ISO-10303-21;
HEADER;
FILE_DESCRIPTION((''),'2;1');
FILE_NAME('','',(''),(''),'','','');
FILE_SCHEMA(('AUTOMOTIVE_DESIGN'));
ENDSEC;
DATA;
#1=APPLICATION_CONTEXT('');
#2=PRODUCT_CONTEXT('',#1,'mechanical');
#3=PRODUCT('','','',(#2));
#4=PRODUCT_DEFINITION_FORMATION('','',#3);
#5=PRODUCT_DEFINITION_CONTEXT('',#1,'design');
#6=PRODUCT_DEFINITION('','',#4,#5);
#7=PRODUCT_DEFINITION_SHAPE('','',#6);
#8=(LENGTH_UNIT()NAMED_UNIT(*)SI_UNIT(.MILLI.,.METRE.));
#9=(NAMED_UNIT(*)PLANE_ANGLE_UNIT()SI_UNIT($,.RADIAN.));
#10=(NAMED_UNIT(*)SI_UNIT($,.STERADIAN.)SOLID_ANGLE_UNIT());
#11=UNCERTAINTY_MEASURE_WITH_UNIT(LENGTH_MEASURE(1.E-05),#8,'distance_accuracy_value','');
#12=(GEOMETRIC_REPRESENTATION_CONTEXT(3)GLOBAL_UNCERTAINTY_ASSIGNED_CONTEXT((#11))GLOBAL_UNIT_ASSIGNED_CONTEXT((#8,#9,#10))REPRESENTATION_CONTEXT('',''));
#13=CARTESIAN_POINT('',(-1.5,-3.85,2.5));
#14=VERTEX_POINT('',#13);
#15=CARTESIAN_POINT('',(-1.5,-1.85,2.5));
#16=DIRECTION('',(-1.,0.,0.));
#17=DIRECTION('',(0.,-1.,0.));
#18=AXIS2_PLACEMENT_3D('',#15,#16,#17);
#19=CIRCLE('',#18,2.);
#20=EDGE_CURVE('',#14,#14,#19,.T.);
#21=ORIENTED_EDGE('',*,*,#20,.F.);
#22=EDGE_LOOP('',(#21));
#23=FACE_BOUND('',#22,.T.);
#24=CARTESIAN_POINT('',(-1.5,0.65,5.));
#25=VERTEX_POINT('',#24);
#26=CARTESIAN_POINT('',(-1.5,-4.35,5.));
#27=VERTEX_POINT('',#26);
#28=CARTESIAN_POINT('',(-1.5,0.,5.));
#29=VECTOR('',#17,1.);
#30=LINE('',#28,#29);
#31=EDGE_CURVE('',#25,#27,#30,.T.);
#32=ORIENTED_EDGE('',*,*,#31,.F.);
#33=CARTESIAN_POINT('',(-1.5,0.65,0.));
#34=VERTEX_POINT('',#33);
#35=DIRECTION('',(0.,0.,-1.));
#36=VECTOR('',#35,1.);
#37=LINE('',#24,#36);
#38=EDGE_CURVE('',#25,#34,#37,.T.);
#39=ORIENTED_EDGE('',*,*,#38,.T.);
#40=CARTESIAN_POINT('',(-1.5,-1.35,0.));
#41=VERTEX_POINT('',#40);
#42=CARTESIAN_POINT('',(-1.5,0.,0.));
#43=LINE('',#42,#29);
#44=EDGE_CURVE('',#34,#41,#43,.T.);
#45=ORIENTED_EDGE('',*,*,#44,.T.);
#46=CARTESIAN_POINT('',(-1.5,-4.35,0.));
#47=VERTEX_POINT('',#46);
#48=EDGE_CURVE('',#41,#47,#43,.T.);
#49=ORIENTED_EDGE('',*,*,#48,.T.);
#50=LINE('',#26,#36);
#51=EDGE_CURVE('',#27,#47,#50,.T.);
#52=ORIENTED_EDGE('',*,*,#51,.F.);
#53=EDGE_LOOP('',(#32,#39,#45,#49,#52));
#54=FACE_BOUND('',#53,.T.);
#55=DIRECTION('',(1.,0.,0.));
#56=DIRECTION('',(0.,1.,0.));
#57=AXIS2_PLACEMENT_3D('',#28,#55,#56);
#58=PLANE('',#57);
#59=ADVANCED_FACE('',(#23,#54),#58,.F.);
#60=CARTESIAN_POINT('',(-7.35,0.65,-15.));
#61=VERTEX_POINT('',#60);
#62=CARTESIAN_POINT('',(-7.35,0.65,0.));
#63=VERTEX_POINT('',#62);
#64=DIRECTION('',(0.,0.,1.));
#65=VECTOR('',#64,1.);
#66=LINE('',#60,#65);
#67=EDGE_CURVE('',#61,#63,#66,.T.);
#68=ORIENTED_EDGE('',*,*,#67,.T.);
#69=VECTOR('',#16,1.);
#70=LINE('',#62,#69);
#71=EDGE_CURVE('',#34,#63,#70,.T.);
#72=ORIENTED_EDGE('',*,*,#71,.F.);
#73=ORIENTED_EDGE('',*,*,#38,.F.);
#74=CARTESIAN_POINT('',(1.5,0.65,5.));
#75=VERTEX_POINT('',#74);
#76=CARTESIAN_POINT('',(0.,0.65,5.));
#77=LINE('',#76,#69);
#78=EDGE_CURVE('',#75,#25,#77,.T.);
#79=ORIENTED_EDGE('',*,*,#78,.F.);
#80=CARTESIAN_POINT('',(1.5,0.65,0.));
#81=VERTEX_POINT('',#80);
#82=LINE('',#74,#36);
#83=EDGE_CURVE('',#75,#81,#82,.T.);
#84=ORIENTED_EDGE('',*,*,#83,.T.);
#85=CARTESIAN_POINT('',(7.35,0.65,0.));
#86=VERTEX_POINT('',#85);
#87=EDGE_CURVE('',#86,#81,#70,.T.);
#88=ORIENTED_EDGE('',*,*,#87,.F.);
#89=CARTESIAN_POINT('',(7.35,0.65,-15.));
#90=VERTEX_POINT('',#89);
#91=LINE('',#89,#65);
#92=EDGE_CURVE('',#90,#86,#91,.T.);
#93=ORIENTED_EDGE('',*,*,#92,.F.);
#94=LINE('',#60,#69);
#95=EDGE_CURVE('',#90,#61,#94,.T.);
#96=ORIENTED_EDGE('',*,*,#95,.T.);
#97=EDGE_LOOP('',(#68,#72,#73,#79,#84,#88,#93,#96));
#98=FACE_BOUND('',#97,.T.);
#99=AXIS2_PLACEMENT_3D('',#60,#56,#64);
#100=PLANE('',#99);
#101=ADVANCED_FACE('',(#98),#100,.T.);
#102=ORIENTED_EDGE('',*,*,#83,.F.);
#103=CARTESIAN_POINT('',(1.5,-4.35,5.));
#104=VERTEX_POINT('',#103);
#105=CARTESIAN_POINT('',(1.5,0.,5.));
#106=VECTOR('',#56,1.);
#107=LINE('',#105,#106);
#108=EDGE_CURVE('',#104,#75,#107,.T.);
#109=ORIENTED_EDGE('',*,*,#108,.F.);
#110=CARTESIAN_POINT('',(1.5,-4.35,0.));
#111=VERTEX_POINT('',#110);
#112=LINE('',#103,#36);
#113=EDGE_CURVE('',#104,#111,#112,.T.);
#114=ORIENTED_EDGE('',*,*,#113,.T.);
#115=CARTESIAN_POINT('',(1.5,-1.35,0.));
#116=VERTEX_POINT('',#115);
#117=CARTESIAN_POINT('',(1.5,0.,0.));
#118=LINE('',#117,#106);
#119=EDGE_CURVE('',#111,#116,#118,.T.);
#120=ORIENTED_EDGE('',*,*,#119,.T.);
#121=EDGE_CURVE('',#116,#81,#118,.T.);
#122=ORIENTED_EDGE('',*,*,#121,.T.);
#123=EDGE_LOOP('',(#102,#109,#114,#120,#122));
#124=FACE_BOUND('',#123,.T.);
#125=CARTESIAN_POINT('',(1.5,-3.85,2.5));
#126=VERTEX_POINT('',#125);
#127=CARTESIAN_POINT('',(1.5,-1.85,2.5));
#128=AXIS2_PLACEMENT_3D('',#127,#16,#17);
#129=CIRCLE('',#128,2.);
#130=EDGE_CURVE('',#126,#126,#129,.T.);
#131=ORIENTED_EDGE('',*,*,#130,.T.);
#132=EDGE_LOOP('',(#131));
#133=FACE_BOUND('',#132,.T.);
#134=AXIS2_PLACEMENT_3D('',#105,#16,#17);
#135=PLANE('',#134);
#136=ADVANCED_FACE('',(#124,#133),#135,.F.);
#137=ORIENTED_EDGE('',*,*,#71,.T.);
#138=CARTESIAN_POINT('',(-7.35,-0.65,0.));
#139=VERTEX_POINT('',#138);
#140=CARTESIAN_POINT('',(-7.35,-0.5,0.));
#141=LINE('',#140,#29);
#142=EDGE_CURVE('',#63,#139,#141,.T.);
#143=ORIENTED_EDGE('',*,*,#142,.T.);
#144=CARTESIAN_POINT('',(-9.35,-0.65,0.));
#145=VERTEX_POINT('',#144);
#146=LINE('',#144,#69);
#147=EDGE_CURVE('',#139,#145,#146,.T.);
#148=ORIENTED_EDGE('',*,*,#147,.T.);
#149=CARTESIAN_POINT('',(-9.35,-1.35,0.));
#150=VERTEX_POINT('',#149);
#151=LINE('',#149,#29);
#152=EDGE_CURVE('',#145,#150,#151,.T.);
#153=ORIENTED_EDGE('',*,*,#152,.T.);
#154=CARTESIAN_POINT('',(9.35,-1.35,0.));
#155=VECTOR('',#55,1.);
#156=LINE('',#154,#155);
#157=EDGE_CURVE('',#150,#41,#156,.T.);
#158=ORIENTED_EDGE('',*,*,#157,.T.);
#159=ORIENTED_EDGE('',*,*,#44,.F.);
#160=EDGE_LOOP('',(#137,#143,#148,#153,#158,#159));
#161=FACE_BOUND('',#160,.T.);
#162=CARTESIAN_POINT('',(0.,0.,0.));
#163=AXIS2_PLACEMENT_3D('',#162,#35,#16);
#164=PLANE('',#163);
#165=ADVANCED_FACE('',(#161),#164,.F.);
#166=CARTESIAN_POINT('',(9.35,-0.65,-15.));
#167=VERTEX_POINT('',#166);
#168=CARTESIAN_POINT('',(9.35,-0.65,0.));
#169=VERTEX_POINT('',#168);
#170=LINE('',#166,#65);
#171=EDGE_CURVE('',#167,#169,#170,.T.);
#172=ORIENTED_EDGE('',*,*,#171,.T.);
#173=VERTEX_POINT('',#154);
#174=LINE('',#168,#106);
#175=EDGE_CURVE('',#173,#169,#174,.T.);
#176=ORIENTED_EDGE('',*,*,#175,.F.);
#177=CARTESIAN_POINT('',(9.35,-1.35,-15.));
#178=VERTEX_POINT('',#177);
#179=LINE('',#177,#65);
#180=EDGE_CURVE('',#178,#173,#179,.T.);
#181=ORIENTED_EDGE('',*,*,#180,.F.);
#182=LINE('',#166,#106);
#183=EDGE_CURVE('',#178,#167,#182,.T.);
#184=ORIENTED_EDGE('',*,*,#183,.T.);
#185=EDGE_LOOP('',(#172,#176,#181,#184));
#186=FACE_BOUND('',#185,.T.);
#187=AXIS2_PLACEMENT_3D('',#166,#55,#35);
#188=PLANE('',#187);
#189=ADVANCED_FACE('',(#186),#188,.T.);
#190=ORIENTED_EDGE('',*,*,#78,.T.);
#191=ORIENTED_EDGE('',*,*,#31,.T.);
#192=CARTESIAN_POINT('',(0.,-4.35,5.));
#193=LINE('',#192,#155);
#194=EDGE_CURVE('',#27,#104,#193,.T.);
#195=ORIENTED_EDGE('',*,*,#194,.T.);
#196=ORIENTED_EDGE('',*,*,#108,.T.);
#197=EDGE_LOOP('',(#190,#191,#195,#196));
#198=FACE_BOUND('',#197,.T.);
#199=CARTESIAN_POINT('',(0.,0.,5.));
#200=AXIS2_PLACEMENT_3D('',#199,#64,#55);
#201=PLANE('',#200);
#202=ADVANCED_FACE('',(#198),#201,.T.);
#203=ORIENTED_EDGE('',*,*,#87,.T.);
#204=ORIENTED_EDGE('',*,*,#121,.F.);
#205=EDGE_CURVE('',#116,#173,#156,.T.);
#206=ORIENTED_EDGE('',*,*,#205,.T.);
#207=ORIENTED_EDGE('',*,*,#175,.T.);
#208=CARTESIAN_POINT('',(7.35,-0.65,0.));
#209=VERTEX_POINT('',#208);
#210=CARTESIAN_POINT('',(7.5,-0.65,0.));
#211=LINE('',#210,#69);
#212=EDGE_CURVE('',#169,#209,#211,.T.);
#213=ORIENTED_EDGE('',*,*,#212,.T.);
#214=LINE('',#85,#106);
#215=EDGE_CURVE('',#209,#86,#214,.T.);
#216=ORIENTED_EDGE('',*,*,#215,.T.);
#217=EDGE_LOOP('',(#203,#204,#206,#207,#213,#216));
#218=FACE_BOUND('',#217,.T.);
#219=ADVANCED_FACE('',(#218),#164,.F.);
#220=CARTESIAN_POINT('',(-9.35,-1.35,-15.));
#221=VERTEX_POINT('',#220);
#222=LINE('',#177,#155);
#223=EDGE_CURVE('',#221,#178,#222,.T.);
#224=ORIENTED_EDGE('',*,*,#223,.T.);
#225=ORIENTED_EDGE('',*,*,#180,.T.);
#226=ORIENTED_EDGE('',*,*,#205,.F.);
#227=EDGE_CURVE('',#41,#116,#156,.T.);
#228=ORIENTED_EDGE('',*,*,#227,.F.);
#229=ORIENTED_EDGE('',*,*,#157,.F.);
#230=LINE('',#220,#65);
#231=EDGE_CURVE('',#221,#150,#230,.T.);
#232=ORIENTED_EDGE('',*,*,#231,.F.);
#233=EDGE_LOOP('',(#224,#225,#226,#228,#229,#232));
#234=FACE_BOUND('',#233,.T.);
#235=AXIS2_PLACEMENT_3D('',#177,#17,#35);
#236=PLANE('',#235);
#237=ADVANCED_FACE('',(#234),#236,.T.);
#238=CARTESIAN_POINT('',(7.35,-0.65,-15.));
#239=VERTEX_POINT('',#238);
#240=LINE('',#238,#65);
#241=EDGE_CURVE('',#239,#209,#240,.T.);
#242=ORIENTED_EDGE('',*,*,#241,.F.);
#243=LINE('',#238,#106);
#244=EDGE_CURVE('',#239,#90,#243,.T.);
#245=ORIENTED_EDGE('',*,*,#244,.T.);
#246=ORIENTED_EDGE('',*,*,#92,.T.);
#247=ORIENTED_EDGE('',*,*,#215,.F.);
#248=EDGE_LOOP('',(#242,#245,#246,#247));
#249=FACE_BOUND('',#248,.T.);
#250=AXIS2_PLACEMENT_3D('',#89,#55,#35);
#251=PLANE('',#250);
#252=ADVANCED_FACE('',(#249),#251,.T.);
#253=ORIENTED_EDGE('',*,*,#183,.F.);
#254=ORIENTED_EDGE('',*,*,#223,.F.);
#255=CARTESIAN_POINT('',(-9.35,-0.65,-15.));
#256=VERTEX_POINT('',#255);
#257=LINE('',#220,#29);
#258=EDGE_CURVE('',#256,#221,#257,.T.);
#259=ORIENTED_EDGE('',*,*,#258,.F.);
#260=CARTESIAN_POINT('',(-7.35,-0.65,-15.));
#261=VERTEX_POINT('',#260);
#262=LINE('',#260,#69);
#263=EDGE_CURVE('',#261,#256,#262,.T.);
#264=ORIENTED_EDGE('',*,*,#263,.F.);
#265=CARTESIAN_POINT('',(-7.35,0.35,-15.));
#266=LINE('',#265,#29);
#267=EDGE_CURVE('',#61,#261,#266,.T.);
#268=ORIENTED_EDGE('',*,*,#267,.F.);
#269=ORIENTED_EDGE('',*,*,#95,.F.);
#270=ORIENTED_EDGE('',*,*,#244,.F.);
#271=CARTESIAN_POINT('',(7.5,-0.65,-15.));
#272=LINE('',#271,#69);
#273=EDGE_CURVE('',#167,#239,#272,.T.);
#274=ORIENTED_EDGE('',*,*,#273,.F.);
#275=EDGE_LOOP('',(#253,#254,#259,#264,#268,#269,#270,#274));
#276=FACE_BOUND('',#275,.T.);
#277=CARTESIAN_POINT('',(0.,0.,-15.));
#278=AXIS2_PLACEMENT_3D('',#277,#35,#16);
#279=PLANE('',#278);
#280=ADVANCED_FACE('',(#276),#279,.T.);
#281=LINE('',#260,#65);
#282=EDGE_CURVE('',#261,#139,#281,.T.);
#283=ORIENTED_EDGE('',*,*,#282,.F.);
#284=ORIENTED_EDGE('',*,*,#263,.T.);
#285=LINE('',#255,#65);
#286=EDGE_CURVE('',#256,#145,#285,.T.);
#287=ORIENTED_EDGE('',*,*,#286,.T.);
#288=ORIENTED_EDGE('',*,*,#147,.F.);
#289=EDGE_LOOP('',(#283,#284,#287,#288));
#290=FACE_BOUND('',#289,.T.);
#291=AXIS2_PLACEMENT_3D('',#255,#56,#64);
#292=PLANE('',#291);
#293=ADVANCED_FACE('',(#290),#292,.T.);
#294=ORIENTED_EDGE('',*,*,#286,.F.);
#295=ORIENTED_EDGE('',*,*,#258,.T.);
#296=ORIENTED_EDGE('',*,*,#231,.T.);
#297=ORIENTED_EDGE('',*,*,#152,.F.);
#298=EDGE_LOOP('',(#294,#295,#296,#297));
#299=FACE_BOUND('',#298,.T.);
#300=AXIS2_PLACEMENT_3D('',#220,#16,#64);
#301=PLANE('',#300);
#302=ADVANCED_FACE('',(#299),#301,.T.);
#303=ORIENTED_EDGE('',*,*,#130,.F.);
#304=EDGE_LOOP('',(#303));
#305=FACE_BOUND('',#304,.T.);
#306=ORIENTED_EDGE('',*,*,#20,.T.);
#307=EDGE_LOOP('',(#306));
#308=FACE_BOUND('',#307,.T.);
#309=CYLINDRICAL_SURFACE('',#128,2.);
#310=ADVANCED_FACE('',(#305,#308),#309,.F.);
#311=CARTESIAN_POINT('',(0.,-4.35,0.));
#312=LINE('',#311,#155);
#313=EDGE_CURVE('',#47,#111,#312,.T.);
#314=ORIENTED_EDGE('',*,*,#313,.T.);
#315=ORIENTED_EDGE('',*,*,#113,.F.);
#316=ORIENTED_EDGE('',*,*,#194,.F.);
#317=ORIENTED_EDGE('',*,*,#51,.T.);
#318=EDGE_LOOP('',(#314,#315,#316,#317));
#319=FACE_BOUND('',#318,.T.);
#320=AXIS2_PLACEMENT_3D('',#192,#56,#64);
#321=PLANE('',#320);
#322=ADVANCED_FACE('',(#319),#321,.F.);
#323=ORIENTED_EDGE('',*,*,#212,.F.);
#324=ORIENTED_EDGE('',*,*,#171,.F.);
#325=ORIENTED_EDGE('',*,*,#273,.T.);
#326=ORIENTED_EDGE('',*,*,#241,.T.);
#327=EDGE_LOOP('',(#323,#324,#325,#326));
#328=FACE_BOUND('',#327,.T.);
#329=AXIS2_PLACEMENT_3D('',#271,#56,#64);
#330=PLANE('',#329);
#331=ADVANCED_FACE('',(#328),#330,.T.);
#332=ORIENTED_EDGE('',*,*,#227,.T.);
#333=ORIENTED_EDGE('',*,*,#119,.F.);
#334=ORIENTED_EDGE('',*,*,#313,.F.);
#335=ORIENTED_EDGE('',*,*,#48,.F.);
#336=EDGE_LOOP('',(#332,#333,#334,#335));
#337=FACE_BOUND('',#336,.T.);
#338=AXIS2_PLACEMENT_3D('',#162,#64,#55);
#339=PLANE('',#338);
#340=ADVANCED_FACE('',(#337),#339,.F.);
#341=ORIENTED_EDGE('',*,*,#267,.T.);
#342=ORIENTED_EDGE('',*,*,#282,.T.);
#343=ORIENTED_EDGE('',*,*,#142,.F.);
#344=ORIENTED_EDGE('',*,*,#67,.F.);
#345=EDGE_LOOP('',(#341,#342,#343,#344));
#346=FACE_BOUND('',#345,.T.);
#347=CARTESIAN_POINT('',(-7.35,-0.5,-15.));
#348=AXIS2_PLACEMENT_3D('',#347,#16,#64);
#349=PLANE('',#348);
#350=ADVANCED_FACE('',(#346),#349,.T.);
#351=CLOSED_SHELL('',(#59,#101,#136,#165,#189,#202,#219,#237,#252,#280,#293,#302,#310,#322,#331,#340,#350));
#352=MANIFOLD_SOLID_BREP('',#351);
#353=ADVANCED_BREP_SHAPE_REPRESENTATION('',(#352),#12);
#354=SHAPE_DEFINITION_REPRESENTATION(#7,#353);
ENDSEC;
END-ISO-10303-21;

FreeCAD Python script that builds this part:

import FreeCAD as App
import Part
import Sketcher
from FreeCAD import Vector
Q = App.Units.Quantity

doc = App.newDocument("Part")
body = doc.addObject("PartDesign::Body", "Body")

# Sketch on XY plane
sketch1 = doc.addObject("Sketcher::SketchObject", "Sketch")
body.addObject(sketch1)
sketch1.AttachmentSupport = (doc.XY_Plane, [""])
sketch1.MapMode = "FlatFace"
sketch1.addGeometry(Part.LineSegment(Vector(9.3, -0.7, 0), Vector(7.3, -0.7, 0)), False)
sketch1.addGeometry(Part.LineSegment(Vector(7.3, -0.7, 0), Vector(7.3, 0.7, 0)), False)
sketch1.addGeometry(Part.LineSegment(Vector(7.3, 0.7, 0), Vector(-7.3, 0.7, 0)), False)
sketch1.addGeometry(Part.LineSegment(Vector(-7.3, 0.7, 0), Vector(-7.3, -0.7, 0)), False)
sketch1.addGeometry(Part.LineSegment(Vector(-7.3, -0.7, 0), Vector(-9.3, -0.7, 0)), False)
sketch1.addGeometry(Part.LineSegment(Vector(-9.3, -0.7, 0), Vector(-9.3, -1.4, 0)), False)
sketch1.addGeometry(Part.LineSegment(Vector(-9.3, -1.4, 0), Vector(9.3, -1.4, 0)), False)
sketch1.addGeometry(Part.LineSegment(Vector(9.3, -1.4, 0), Vector(9.3, -0.7, 0)), False)
sketch1.addConstraint(Sketcher.Constraint("Coincident", 0, 2, 1, 1))
sketch1.addConstraint(Sketcher.Constraint("Coincident", 1, 2, 2, 1))
sketch1.addConstraint(Sketcher.Constraint("Coincident", 2, 2, 3, 1))
sketch1.addConstraint(Sketcher.Constraint("Coincident", 3, 2, 4, 1))
sketch1.addConstraint(Sketcher.Constraint("Coincident", 4, 2, 5, 1))
sketch1.addConstraint(Sketcher.Constraint("Coincident", 5, 2, 6, 1))
sketch1.addConstraint(Sketcher.Constraint("Coincident", 6, 2, 7, 1))
sketch1.addConstraint(Sketcher.Constraint("Coincident", 7, 2, 0, 1))
sketch1.addConstraint(Sketcher.Constraint("Horizontal", 0))
sketch1.addConstraint(Sketcher.Constraint("Vertical", 1))
sketch1.addConstraint(Sketcher.Constraint("Horizontal", 2))
sketch1.addConstraint(Sketcher.Constraint("Vertical", 3))
sketch1.addConstraint(Sketcher.Constraint("Horizontal", 4))
sketch1.addConstraint(Sketcher.Constraint("Vertical", 5))
sketch1.addConstraint(Sketcher.Constraint("Horizontal", 6))
sketch1.addConstraint(Sketcher.Constraint("Vertical", 7))
sketch1.addConstraint(Sketcher.Constraint("Symmetric", 0, 2, 2, 2, -1, 1))
sketch1.addConstraint(Sketcher.Constraint("Symmetric", 4, 2, 7, 2, -2))
sketch1.addConstraint(Sketcher.Constraint("DistanceX", 0, 2, 0, 1, Q("2 mm")))
sketch1.addConstraint(Sketcher.Constraint("DistanceX", 2, 2, 2, 1, Q("14.7 mm")))
sketch1.addConstraint(Sketcher.Constraint("DistanceY", 1, 1, 1, 2, Q("1.3 mm")))
sketch1.addConstraint(Sketcher.Constraint("DistanceY", 5, 2, 5, 1, Q("0.7 mm")))
pad1 = doc.addObject("PartDesign::Pad", "Pad")
body.addObject(pad1)
pad1.Profile = sketch1
pad1.Length = 15
pad1.Reversed = True

# Sketch on XY plane
sketch2 = doc.addObject("Sketcher::SketchObject", "Sketch001")
body.addObject(sketch2)
sketch2.AttachmentSupport = (doc.XY_Plane, [""])
sketch2.MapMode = "FlatFace"
sketch2.addGeometry(Part.LineSegment(Vector(-1.5, -4.3, 0), Vector(1.5, -4.3, 0)), False)
sketch2.addGeometry(Part.LineSegment(Vector(1.5, -4.3, 0), Vector(1.5, 0.7, 0)), False)
sketch2.addGeometry(Part.LineSegment(Vector(1.5, 0.7, 0), Vector(-1.5, 0.7, 0)), False)
sketch2.addGeometry(Part.LineSegment(Vector(-1.5, 0.7, 0), Vector(-1.5, -4.3, 0)), False)
sketch2.addConstraint(Sketcher.Constraint("Coincident", 0, 2, 1, 1))
sketch2.addConstraint(Sketcher.Constraint("Coincident", 1, 2, 2, 1))
sketch2.addConstraint(Sketcher.Constraint("Coincident", 2, 2, 3, 1))
sketch2.addConstraint(Sketcher.Constraint("Coincident", 3, 2, 0, 1))
sketch2.addConstraint(Sketcher.Constraint("Horizontal", 0))
sketch2.addConstraint(Sketcher.Constraint("Vertical", 1))
sketch2.addConstraint(Sketcher.Constraint("Horizontal", 2))
sketch2.addConstraint(Sketcher.Constraint("Vertical", 3))
sketch2.addConstraint(Sketcher.Constraint("DistanceX", 0, 1, 0, 2, Q("3 mm")))
sketch2.addConstraint(Sketcher.Constraint("DistanceY", 1, 1, 1, 2, Q("5 mm")))
sketch2.addConstraint(Sketcher.Constraint("DistanceX", -1, 1, 0, 2, Q("1.5 mm")))
sketch2.addConstraint(Sketcher.Constraint("DistanceY", 0, 2, -1, 1, Q("4.35 mm")))
pad2 = doc.addObject("PartDesign::Pad", "Pad001")
body.addObject(pad2)
pad2.Profile = sketch2
pad2.Length = 5

# Sketch on YZ plane
sketch3 = doc.addObject("Sketcher::SketchObject", "Sketch002")
body.addObject(sketch3)
sketch3.AttachmentSupport = (doc.YZ_Plane, [""])
sketch3.MapMode = "FlatFace"
sketch3.AttachmentOffset = App.Placement(Vector(0, 0, -1.5), App.Rotation())
sketch3.addGeometry(Part.Circle(Vector(-1.9, 2.5, 0), Vector(0, 0, 1), 2), False)
sketch3.addConstraint(Sketcher.Constraint("Diameter", 0, Q("4 mm")))
sketch3.addConstraint(Sketcher.Constraint("DistanceY", -1, 1, 0, 3, Q("2.5 mm")))
sketch3.addConstraint(Sketcher.Constraint("DistanceX", 0, 3, -1, 1, Q("1.85 mm")))
pocket1 = doc.addObject("PartDesign::Pocket", "Pocket")
body.addObject(pocket1)
pocket1.Profile = sketch3
pocket1.Length = 3
pocket1.Reversed = True

doc.recompute()
